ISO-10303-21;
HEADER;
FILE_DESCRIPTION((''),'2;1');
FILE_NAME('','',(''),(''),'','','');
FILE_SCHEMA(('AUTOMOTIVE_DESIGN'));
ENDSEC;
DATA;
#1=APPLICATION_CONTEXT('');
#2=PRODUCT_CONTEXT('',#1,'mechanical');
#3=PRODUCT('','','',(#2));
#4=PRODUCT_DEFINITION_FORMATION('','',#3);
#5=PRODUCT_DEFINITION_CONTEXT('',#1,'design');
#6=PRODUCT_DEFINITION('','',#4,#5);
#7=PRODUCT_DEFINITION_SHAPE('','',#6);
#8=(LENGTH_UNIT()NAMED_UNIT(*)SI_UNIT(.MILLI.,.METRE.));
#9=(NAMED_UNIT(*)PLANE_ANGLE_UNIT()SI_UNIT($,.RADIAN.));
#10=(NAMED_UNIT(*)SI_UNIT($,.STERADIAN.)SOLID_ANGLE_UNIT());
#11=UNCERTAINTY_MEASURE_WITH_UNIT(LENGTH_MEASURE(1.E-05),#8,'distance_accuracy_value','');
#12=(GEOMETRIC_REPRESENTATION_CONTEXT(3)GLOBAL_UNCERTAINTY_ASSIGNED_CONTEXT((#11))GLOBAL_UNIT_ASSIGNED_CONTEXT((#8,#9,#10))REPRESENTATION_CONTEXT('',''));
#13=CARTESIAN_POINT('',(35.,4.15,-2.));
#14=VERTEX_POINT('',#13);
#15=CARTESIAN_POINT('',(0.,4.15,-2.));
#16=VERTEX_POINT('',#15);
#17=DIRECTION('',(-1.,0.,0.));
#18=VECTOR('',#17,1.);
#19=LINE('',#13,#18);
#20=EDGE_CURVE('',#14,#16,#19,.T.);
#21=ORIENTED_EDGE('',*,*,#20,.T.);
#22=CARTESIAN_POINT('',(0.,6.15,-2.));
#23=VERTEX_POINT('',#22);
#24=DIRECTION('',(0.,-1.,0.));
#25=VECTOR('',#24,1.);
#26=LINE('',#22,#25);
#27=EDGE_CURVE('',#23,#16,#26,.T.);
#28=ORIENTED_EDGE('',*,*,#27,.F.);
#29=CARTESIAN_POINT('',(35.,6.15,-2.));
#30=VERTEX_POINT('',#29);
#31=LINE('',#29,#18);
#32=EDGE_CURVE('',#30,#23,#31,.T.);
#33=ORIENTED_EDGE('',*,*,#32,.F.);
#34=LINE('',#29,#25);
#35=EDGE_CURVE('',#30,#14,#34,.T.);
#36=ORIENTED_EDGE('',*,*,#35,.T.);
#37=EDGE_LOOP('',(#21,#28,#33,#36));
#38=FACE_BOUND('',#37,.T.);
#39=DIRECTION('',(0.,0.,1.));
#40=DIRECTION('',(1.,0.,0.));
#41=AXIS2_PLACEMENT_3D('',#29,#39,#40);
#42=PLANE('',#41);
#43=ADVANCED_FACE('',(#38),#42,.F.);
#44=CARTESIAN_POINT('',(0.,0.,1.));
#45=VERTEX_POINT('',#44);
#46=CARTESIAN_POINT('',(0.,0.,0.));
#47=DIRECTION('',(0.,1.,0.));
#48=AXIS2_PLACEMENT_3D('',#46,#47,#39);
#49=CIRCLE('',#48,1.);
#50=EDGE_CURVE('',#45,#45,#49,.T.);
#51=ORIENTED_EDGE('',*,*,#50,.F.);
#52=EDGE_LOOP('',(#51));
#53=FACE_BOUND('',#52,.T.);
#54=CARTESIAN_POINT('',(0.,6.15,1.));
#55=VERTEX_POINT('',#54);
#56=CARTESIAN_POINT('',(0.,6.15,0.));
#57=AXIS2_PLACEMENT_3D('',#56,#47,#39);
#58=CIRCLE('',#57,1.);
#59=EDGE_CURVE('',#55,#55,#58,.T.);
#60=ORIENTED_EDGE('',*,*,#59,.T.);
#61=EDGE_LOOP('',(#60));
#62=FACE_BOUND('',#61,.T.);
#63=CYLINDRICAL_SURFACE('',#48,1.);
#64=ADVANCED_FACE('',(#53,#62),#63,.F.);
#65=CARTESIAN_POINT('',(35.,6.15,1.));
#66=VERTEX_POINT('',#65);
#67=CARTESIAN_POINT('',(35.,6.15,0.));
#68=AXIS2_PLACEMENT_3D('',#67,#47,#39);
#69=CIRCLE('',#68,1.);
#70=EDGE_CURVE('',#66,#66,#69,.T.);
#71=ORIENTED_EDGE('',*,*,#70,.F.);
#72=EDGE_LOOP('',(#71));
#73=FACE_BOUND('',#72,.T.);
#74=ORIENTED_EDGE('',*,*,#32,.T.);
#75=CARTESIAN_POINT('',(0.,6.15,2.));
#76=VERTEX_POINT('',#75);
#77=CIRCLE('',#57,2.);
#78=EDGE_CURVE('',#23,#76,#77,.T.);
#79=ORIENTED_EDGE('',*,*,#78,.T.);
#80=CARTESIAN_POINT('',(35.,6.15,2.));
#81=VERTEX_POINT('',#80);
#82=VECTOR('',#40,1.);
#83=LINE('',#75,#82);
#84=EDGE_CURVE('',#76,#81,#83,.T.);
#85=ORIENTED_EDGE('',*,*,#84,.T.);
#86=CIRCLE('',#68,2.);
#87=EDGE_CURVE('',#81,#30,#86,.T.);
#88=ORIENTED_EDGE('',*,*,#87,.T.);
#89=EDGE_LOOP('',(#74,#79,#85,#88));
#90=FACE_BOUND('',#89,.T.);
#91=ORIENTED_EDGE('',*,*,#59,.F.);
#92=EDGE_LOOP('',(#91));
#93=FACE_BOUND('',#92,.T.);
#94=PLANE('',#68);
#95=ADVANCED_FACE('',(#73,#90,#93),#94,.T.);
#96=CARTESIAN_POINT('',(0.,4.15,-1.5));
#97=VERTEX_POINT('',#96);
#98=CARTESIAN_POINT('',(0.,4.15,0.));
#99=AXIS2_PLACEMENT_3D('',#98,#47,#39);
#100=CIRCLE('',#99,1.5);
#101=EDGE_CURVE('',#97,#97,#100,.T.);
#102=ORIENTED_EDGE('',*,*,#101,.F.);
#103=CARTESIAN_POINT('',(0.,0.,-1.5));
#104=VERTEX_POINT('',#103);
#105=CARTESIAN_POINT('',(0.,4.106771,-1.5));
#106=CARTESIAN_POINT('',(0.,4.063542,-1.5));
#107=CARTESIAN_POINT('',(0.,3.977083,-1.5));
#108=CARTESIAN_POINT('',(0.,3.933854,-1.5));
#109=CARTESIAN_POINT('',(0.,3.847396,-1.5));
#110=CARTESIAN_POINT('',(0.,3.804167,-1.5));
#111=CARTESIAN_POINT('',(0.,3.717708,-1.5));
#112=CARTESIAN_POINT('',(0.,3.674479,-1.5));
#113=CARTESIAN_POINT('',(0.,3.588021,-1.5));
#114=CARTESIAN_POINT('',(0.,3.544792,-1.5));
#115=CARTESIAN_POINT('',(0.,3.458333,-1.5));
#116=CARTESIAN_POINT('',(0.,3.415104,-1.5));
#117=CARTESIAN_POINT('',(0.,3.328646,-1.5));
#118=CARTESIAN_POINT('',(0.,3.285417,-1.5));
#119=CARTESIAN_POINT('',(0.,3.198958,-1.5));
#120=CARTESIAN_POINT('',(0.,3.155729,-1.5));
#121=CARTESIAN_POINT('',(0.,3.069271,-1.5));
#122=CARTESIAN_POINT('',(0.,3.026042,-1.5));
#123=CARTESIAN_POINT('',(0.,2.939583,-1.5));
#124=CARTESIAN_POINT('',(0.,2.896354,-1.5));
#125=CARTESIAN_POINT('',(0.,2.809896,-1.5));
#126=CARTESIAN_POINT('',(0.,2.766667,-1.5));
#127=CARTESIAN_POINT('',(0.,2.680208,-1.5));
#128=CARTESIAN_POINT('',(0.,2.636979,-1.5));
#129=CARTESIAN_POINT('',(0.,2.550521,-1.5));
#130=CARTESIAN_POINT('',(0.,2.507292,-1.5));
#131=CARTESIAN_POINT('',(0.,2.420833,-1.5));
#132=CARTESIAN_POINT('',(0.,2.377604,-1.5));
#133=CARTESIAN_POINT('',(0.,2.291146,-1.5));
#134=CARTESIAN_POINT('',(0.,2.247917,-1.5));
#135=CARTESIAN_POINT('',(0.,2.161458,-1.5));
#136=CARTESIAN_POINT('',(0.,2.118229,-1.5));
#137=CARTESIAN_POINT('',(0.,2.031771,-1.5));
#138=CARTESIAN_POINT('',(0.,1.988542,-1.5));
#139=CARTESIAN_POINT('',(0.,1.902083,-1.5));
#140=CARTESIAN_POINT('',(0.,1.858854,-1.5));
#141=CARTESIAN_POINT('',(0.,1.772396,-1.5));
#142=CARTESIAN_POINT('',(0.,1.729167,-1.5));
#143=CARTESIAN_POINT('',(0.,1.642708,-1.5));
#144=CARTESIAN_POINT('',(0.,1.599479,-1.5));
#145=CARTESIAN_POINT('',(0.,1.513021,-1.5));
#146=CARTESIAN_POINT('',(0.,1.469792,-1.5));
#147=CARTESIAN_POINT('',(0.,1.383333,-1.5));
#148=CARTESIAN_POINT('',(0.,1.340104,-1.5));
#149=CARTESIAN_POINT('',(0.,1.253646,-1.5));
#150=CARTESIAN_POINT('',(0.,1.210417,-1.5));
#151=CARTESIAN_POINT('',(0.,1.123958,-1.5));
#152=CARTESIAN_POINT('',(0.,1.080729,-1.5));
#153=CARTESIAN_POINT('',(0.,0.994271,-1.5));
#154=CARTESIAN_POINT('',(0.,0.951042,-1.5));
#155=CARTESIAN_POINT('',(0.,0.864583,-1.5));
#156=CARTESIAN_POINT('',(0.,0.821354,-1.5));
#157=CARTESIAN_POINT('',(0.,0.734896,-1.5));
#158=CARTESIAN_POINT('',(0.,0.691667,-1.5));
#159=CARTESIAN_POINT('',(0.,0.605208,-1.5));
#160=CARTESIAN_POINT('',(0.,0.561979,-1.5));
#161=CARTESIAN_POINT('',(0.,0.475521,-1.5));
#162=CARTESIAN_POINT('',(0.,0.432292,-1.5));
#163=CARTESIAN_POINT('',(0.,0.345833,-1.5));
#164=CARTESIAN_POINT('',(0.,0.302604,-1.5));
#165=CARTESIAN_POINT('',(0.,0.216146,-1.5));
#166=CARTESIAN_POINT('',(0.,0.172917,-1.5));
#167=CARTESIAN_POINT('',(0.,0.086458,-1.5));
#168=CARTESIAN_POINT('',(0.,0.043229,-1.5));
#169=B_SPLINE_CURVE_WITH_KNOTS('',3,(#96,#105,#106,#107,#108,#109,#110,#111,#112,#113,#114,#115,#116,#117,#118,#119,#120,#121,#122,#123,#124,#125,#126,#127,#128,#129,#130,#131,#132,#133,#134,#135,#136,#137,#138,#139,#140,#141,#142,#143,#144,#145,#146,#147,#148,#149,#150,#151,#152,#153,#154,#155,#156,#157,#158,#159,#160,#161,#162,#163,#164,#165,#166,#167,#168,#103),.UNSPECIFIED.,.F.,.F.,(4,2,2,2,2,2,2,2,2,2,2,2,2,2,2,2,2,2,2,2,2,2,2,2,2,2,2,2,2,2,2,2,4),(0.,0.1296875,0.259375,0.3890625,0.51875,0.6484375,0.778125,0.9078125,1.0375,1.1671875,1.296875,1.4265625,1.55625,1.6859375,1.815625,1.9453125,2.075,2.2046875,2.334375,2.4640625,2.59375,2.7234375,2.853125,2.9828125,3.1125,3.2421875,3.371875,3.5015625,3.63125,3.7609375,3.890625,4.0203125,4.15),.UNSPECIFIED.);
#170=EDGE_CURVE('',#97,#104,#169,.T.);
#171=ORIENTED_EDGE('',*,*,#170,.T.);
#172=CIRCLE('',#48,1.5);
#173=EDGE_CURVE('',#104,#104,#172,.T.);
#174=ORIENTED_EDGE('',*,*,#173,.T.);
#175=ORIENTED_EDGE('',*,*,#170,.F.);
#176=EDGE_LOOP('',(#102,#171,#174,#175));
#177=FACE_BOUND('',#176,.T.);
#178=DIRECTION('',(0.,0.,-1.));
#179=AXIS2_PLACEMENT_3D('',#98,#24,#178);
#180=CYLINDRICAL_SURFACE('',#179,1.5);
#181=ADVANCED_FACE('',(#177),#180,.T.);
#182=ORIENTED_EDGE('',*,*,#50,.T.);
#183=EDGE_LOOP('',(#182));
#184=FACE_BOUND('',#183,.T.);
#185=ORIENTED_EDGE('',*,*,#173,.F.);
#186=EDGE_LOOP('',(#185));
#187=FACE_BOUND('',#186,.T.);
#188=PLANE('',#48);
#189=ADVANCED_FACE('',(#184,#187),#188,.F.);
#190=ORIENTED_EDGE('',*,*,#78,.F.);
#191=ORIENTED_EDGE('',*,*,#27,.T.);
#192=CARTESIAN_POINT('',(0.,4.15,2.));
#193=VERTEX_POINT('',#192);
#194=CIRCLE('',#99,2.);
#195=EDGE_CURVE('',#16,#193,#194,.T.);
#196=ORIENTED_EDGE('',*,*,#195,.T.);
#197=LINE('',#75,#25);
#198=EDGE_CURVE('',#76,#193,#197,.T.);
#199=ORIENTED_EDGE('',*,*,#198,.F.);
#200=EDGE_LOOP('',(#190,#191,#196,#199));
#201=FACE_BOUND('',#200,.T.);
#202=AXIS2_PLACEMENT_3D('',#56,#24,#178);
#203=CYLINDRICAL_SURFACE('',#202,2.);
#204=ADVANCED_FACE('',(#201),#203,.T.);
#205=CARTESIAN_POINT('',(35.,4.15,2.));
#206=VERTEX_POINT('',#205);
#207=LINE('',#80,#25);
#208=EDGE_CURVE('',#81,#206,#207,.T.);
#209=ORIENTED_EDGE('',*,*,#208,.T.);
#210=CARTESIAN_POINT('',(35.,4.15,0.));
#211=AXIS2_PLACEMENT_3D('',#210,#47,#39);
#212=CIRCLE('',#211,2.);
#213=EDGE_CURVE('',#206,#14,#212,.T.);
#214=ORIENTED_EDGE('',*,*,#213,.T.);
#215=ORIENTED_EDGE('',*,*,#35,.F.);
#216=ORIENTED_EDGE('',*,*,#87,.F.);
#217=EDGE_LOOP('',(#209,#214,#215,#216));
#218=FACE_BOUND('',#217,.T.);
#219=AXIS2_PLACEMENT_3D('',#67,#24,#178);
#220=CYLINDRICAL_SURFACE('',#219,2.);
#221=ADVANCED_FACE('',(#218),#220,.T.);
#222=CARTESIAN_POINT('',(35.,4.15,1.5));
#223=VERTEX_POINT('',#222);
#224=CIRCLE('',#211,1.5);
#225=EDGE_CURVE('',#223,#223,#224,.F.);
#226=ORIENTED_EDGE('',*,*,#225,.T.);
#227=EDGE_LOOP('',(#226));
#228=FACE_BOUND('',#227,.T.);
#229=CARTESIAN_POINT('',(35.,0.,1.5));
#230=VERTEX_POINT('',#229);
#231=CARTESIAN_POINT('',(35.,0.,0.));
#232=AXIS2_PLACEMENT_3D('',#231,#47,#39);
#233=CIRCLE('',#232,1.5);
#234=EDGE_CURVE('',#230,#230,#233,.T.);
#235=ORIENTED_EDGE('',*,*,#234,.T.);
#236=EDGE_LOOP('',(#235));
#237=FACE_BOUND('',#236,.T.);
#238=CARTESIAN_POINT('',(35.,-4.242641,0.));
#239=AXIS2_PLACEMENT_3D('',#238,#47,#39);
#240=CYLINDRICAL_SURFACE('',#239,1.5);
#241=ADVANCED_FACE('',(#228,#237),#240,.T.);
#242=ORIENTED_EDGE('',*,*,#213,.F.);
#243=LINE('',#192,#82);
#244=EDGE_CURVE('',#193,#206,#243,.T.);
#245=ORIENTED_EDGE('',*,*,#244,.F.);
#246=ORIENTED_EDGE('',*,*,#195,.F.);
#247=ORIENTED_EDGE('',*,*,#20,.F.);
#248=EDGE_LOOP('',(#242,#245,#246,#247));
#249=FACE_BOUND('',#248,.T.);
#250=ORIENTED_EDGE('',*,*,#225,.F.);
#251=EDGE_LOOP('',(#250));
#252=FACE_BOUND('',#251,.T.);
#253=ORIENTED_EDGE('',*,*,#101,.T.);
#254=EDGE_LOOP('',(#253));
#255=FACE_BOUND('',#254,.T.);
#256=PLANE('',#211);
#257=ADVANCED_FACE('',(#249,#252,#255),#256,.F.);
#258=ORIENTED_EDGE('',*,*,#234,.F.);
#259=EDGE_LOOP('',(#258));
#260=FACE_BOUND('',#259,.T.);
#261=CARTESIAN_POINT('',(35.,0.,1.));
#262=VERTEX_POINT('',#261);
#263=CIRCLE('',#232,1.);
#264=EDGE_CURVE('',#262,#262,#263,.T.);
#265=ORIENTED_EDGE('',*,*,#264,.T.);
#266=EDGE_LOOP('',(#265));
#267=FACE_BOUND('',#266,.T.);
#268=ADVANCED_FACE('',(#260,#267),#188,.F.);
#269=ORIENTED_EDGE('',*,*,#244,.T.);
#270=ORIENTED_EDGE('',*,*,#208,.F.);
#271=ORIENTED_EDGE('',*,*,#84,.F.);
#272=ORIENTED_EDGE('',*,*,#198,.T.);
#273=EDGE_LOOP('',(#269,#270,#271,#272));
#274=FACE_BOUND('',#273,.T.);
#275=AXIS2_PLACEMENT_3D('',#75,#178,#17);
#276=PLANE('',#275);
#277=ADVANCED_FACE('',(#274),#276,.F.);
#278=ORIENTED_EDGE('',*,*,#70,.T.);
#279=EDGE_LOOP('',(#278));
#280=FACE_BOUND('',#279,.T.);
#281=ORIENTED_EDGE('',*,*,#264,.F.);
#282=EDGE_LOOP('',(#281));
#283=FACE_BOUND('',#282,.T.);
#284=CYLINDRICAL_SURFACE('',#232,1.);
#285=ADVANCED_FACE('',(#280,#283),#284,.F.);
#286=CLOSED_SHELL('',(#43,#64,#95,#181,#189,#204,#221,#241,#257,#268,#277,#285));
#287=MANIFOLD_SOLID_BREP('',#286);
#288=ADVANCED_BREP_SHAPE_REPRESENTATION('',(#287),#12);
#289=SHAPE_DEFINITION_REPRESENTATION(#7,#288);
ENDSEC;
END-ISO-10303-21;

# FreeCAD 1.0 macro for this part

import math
import FreeCAD as App
import Part
import Sketcher
from FreeCAD import Vector
Q = App.Units.Quantity

doc = App.newDocument("Part")
body = doc.addObject("PartDesign::Body", "Body")

sketch1 = doc.addObject("Sketcher::SketchObject", "Sketch")
body.addObject(sketch1)
sketch1.AttachmentSupport = (doc.XZ_Plane, [""])
sketch1.MapMode = "FlatFace"
sketch1.addGeometry(Part.Circle(Vector(0, 0, 0), Vector(0, 0, 1), 1.5), False)
sketch1.addConstraint(Sketcher.Constraint("Coincident", 0, 3, -1, 1))
sketch1.addConstraint(Sketcher.Constraint("Diameter", 0, Q("3 mm")))
pad1 = doc.addObject("PartDesign::Pad", "Pad")
body.addObject(pad1)
pad1.Profile = sketch1
pad1.Length = 4.15
pad1.Reversed = True

sketch2 = doc.addObject("Sketcher::SketchObject", "Sketch001")
body.addObject(sketch2)
sketch2.AttachmentSupport = (doc.XZ_Plane, [""])
sketch2.MapMode = "FlatFace"
sketch2.AttachmentOffset = App.Placement(Vector(0, 0, -4.15), App.Rotation())
sketch2.addGeometry(Part.LineSegment(Vector(35, -2, 0), Vector(0, -2, 0)), False)
sketch2.addGeometry(Part.ArcOfCircle(Part.Circle(Vector(0, 0, 0), Vector(0, 0, 1), 2), math.radians(90), math.radians(270)), False)
sketch2.addGeometry(Part.LineSegment(Vector(0, 2, 0), Vector(35, 2, 0)), False)
sketch2.addGeometry(Part.ArcOfCircle(Part.Circle(Vector(35, 0, 0), Vector(0, 0, 1), 2), math.radians(-90), math.radians(90)), False)
sketch2.addConstraint(Sketcher.Constraint("Tangent", 0, 2, 1, 2))
sketch2.addConstraint(Sketcher.Constraint("Tangent", 1, 1, 2, 1))
sketch2.addConstraint(Sketcher.Constraint("Tangent", 2, 2, 3, 2))
sketch2.addConstraint(Sketcher.Constraint("Tangent", 3, 1, 0, 1))
sketch2.addConstraint(Sketcher.Constraint("Horizontal", 0))
sketch2.addConstraint(Sketcher.Constraint("Horizontal", 2))
sketch2.addConstraint(Sketcher.Constraint("Coincident", 1, 3, -1, 1))
sketch2.addConstraint(Sketcher.Constraint("Radius", 1, Q("2 mm")))
sketch2.addConstraint(Sketcher.Constraint("DistanceX", 0, 2, 0, 1, Q("35 mm")))
pad2 = doc.addObject("PartDesign::Pad", "Pad001")
body.addObject(pad2)
pad2.Profile = sketch2
pad2.Length = 2
pad2.Reversed = True

sketch3 = doc.addObject("Sketcher::SketchObject", "Sketch002")
body.addObject(sketch3)
sketch3.AttachmentSupport = (doc.XZ_Plane, [""])
sketch3.MapMode = "FlatFace"
sketch3.AttachmentOffset = App.Placement(Vector(0, 0, -4.15), App.Rotation())
sketch3.addGeometry(Part.Circle(Vector(35, 0, 0), Vector(0, 0, 1), 1.5), False)
sketch3.addConstraint(Sketcher.Constraint("PointOnObject", 0, 3, -1))
sketch3.addConstraint(Sketcher.Constraint("Diameter", 0, Q("3 mm")))
sketch3.addConstraint(Sketcher.Constraint("DistanceX", -1, 1, 0, 3, Q("35 mm")))
pad3 = doc.addObject("PartDesign::Pad", "Pad002")
body.addObject(pad3)
pad3.Profile = sketch3
pad3.Length = 4.15

sketch4 = doc.addObject("Sketcher::SketchObject", "Sketch003")
body.addObject(sketch4)
sketch4.AttachmentSupport = (doc.XZ_Plane, [""])
sketch4.MapMode = "FlatFace"
sketch4.AttachmentOffset = App.Placement(Vector(0, 0, -6.15), App.Rotation())
sketch4.addGeometry(Part.Circle(Vector(0, 0, 0), Vector(0, 0, 1), 1), False)
sketch4.addGeometry(Part.Circle(Vector(35, 0, 0), Vector(0, 0, 1), 1), False)
sketch4.addConstraint(Sketcher.Constraint("Coincident", 0, 3, -1, 1))
sketch4.addConstraint(Sketcher.Constraint("Equal", 0, 1))
sketch4.addConstraint(Sketcher.Constraint("PointOnObject", 1, 3, -1))
sketch4.addConstraint(Sketcher.Constraint("Diameter", 0, Q("2 mm")))
sketch4.addConstraint(Sketcher.Constraint("DistanceX", -1, 1, 1, 3, Q("35 mm")))
pocket1 = doc.addObject("PartDesign::Pocket", "Pocket")
body.addObject(pocket1)
pocket1.Profile = sketch4
pocket1.Type = "ThroughAll"
pocket1.Reversed = True

doc.recompute()
